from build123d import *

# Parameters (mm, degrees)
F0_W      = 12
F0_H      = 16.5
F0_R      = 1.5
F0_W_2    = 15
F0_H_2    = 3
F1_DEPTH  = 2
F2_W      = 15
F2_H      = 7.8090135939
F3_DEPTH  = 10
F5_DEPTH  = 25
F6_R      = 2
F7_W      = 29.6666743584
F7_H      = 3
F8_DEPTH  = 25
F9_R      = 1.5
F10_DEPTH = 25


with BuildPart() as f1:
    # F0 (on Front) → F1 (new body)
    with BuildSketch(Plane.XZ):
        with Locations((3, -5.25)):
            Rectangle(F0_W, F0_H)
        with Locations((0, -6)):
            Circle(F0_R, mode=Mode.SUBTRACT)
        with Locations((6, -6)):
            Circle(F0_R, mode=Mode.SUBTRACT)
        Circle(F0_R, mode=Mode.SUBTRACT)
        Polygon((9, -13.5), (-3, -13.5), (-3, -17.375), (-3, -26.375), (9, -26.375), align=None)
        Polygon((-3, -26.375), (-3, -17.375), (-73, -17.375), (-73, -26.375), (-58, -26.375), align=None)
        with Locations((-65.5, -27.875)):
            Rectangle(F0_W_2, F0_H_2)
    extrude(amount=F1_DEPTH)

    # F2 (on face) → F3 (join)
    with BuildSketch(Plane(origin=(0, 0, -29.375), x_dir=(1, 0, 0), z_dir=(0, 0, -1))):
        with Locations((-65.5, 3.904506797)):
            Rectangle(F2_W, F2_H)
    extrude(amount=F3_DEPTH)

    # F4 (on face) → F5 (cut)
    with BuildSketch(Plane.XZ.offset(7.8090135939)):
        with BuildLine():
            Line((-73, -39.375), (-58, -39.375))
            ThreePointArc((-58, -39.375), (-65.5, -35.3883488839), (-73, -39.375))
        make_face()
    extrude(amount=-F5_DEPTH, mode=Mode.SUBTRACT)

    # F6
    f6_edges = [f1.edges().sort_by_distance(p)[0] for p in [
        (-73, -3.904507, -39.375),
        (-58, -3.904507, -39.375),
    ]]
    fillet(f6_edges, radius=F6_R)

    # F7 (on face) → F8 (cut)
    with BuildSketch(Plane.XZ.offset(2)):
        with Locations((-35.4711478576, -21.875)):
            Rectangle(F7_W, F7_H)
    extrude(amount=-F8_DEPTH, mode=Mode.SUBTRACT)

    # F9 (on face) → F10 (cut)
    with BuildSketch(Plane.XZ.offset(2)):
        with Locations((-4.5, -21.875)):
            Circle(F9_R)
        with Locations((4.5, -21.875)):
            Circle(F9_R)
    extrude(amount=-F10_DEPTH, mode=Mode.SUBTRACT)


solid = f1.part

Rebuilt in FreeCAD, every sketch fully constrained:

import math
import FreeCAD as App
import Part
import Sketcher


def edges_at(feature, points):
    """Names of the edges that pass closest to the given points."""
    edges = feature.Shape.Edges
    near = lambda p: min(range(len(edges)), key=lambda i: edges[i].distToShape(Part.Vertex(*p))[0])
    return sorted({f"Edge{near(p) + 1}" for p in points})

doc = App.newDocument("Part")
body = doc.addObject("PartDesign::Body", "Body")

# Sketch on XZ plane
sketch1 = body.newObject("Sketcher::SketchObject", "Sketch")
sketch1.AttachmentSupport = (doc.getObject("XZ_Plane"), [""])
sketch1.MapMode = "FlatFace"
sketch1.addGeometry([
    Part.LineSegment(App.Vector(-3, 3, 0), App.Vector(-3, -17.375, 0)),  # 0
    Part.LineSegment(App.Vector(-3, -17.375, 0), App.Vector(-73, -17.375, 0)),  # 1
    Part.LineSegment(App.Vector(-73, -17.375, 0), App.Vector(-73, -29.375, 0)),  # 2
    Part.LineSegment(App.Vector(-73, -29.375, 0), App.Vector(-58, -29.375, 0)),  # 3
    Part.LineSegment(App.Vector(-58, -29.375, 0), App.Vector(-58, -26.375, 0)),  # 4
    Part.LineSegment(App.Vector(-58, -26.375, 0), App.Vector(9, -26.375, 0)),  # 5
    Part.LineSegment(App.Vector(9, -26.375, 0), App.Vector(9, 3, 0)),  # 6
    Part.LineSegment(App.Vector(9, 3, 0), App.Vector(-3, 3, 0)),  # 7
    Part.Circle(App.Vector(0, -6, 0), App.Vector(0, 0, 1), 1.5),  # 8
    Part.Circle(App.Vector(6, -6, 0), App.Vector(0, 0, 1), 1.5),  # 9
    Part.Circle(App.Vector(0, 0, 0), App.Vector(0, 0, 1), 1.5),  # 10
], False)
sketch1.addConstraint([
    Sketcher.Constraint("Coincident", 0, 2, 1, 1),
    Sketcher.Constraint("Coincident", 1, 2, 2, 1),
    Sketcher.Constraint("Coincident", 2, 2, 3, 1),
    Sketcher.Constraint("Coincident", 3, 2, 4, 1),
    Sketcher.Constraint("Coincident", 4, 2, 5, 1),
    Sketcher.Constraint("Coincident", 5, 2, 6, 1),
    Sketcher.Constraint("Coincident", 6, 2, 7, 1),
    Sketcher.Constraint("Coincident", 7, 2, 0, 1),
    Sketcher.Constraint("Vertical", 0),
    Sketcher.Constraint("Horizontal", 1),
    Sketcher.Constraint("Vertical", 2),
    Sketcher.Constraint("Horizontal", 3),
    Sketcher.Constraint("Vertical", 4),
    Sketcher.Constraint("Horizontal", 5),
    Sketcher.Constraint("Vertical", 6),
    Sketcher.Constraint("Horizontal", 7),
    Sketcher.Constraint("Coincident", 10, 3, -1, 1),
    Sketcher.Constraint("Equal", 8, 9),
    Sketcher.Constraint("Equal", 9, 10),
    Sketcher.Constraint("PointOnObject", 8, 3, -2),
    Sketcher.Constraint("Horizontal", 8, 3, 9, 3),
    Sketcher.Constraint("Equal", 7, 2),
    Sketcher.Constraint("Diameter", 8, 3.0),
    Sketcher.Constraint("DistanceX", 1, 2, 1, 1, 70.0),
    Sketcher.Constraint("DistanceX", 3, 1, 3, 2, 15.0),
    Sketcher.Constraint("DistanceX", 5, 1, 5, 2, 67.0),
    Sketcher.Constraint("DistanceY", 4, 1, 4, 2, 3.0),
    Sketcher.Constraint("DistanceY", 8, 3, -1, 1, 6.0),
    Sketcher.Constraint("DistanceX", -1, 1, 9, 3, 6.0),
    Sketcher.Constraint("DistanceX", 0, 2, -1, 1, 3.0),
    Sketcher.Constraint("DistanceY", -1, 1, 6, 2, 3.0),
    Sketcher.Constraint("DistanceY", 0, 2, 0, 1, 20.375),
])
pad1 = body.newObject("PartDesign::Pad", "Pad")
pad1.Profile = sketch1
pad1.Length = 2

# Sketch on XY plane
sketch2 = body.newObject("Sketcher::SketchObject", "Sketch001")
sketch2.AttachmentSupport = (doc.getObject("XY_Plane"), [""])
sketch2.MapMode = "FlatFace"
sketch2.AttachmentOffset = App.Placement(App.Vector(0, 0, -29.375), App.Rotation())
sketch2.addGeometry([
    Part.LineSegment(App.Vector(-73, -7.809014, 0), App.Vector(-73, 0, 0)),
    Part.LineSegment(App.Vector(-73, 0, 0), App.Vector(-58, 0, 0)),
    Part.LineSegment(App.Vector(-58, 0, 0), App.Vector(-58, -7.809014, 0)),
    Part.LineSegment(App.Vector(-58, -7.809014, 0), App.Vector(-73, -7.809014, 0)),
], False)
sketch2.addConstraint([
    Sketcher.Constraint("Coincident", 0, 2, 1, 1),
    Sketcher.Constraint("Coincident", 1, 2, 2, 1),
    Sketcher.Constraint("Coincident", 2, 2, 3, 1),
    Sketcher.Constraint("Coincident", 3, 2, 0, 1),
    Sketcher.Constraint("Vertical", 0),
    Sketcher.Constraint("Horizontal", 1),
    Sketcher.Constraint("Vertical", 2),
    Sketcher.Constraint("Horizontal", 3),
    Sketcher.Constraint("PointOnObject", 0, 2, -1),
    Sketcher.Constraint("DistanceX", 1, 1, 1, 2, 15.0),
    Sketcher.Constraint("DistanceX", 0, 2, -1, 1, 73.0),
    Sketcher.Constraint("DistanceY", 0, 1, 0, 2, 7.809014),
])
pad2 = body.newObject("PartDesign::Pad", "Pad001")
pad2.Profile = sketch2
pad2.Length = 10
pad2.Reversed = True

# Sketch on XZ plane
sketch3 = body.newObject("Sketcher::SketchObject", "Sketch002")
sketch3.AttachmentSupport = (doc.getObject("XZ_Plane"), [""])
sketch3.MapMode = "FlatFace"
sketch3.AttachmentOffset = App.Placement(App.Vector(0, 0, 7.809014), App.Rotation())
sketch3.addGeometry([
    Part.LineSegment(App.Vector(-73, -39.375, 0), App.Vector(-58, -39.375, 0)),
    Part.ArcOfCircle(Part.Circle(App.Vector(-65.5, -44.436468, 0), App.Vector(0, 0, 1), 9.048119), math.radians(34.013933), math.radians(145.986067)),
], False)
sketch3.addConstraint([
    Sketcher.Constraint("Coincident", 0, 1, 1, 2),
    Sketcher.Constraint("Coincident", 1, 1, 0, 2),
    Sketcher.Constraint("Horizontal", 0),
    Sketcher.Constraint("DistanceX", 0, 1, 0, 2, 15.0),
    Sketcher.Constraint("DistanceX", 0, 1, -1, 1, 73.0),
    Sketcher.Constraint("Radius", 1, 9.048119),
    Sketcher.Constraint("DistanceY", 0, 1, -1, 1, 39.375),
])
pocket1 = body.newObject("PartDesign::Pocket", "Pocket")
pocket1.Profile = sketch3
pocket1.Length = 25
doc.recompute()

fillet = body.newObject("PartDesign::Fillet", "Fillet")
fillet.Base = (pocket1, edges_at(pocket1, [(-73, -3.905, -39.375), (-58, -3.905, -39.375)]))
fillet.Radius = 2

# Sketch on XZ plane
sketch4 = body.newObject("Sketcher::SketchObject", "Sketch003")
sketch4.AttachmentSupport = (doc.getObject("XZ_Plane"), [""])
sketch4.MapMode = "FlatFace"
sketch4.AttachmentOffset = App.Placement(App.Vector(0, 0, 2), App.Rotation())
sketch4.addGeometry([
    Part.LineSegment(App.Vector(-50.304485, -20.375, 0), App.Vector(-50.304485, -23.375, 0)),
    Part.LineSegment(App.Vector(-50.304485, -23.375, 0), App.Vector(-20.637811, -23.375, 0)),
    Part.LineSegment(App.Vector(-20.637811, -23.375, 0), App.Vector(-20.637811, -20.375, 0)),
    Part.LineSegment(App.Vector(-20.637811, -20.375, 0), App.Vector(-50.304485, -20.375, 0)),
], False)
sketch4.addConstraint([
    Sketcher.Constraint("Coincident", 0, 2, 1, 1),
    Sketcher.Constraint("Coincident", 1, 2, 2, 1),
    Sketcher.Constraint("Coincident", 2, 2, 3, 1),
    Sketcher.Constraint("Coincident", 3, 2, 0, 1),
    Sketcher.Constraint("Vertical", 0),
    Sketcher.Constraint("Horizontal", 1),
    Sketcher.Constraint("Vertical", 2),
    Sketcher.Constraint("Horizontal", 3),
    Sketcher.Constraint("DistanceY", 0, 2, 0, 1, 3.0),
    Sketcher.Constraint("DistanceY", 0, 2, -1, 1, 23.375),
    Sketcher.Constraint("DistanceX", 1, 1, 1, 2, 29.666674),
    Sketcher.Constraint("DistanceX", 1, 2, -1, 1, 20.637811),
])
pocket2 = body.newObject("PartDesign::Pocket", "Pocket001")
pocket2.Profile = sketch4
pocket2.Length = 25

# Sketch on XZ plane
sketch5 = body.newObject("Sketcher::SketchObject", "Sketch004")
sketch5.AttachmentSupport = (doc.getObject("XZ_Plane"), [""])
sketch5.MapMode = "FlatFace"
sketch5.AttachmentOffset = App.Placement(App.Vector(0, 0, 2), App.Rotation())
sketch5.addGeometry([
    Part.Circle(App.Vector(-4.5, -21.875, 0), App.Vector(0, 0, 1), 1.5),
    Part.Circle(App.Vector(4.5, -21.875, 0), App.Vector(0, 0, 1), 1.5),
], False)
sketch5.addConstraint([
    Sketcher.Constraint("Equal", 0, 1),
    Sketcher.Constraint("Symmetric", 0, 3, 1, 3, -2),
    Sketcher.Constraint("Diameter", 0, 3.0),
    Sketcher.Constraint("DistanceX", 0, 3, 1, 3, 9.0),
    Sketcher.Constraint("DistanceY", 0, 3, -1, 1, 21.875),
])
pocket3 = body.newObject("PartDesign::Pocket", "Pocket002")
pocket3.Profile = sketch5
pocket3.Length = 25

doc.recompute()
